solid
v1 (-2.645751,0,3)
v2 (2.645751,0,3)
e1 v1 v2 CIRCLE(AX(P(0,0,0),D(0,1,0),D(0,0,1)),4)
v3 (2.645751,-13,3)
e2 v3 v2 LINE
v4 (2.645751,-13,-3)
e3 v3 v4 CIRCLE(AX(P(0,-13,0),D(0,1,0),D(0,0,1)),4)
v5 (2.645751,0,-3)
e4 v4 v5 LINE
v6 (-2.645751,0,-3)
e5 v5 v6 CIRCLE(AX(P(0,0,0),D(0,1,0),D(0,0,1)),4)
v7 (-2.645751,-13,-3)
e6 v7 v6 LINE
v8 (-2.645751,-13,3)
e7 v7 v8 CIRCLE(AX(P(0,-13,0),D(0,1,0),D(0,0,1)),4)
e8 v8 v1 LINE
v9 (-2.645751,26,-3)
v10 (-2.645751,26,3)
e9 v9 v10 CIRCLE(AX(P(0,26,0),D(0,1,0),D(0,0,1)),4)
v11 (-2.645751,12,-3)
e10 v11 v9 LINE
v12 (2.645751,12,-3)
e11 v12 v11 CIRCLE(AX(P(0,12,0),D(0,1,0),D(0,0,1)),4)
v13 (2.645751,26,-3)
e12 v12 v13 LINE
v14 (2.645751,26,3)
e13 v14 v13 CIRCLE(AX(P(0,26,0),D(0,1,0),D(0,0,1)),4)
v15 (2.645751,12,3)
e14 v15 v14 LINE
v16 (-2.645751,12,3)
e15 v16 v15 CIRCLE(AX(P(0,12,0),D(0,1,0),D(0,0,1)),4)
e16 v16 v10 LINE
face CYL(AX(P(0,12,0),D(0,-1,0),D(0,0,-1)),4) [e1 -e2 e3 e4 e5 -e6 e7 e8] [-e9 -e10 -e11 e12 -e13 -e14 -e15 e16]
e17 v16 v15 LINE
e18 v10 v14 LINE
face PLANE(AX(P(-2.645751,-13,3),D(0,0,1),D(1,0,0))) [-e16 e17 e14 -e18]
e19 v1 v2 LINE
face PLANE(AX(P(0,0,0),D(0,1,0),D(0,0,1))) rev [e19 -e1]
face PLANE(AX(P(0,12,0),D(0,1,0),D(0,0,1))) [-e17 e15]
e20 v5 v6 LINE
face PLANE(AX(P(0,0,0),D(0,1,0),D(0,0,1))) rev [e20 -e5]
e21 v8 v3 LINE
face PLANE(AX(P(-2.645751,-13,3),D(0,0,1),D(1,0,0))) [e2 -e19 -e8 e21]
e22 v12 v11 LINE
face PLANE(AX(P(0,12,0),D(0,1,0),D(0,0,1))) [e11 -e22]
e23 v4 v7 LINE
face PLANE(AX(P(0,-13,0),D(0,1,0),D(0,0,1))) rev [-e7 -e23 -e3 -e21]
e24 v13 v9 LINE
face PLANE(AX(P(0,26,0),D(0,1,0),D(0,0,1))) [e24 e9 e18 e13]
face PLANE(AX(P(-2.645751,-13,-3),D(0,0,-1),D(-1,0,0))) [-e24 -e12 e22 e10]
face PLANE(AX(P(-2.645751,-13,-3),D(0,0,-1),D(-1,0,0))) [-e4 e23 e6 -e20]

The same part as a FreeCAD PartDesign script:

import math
import FreeCAD as App
import Part
import Sketcher
from FreeCAD import Vector
Q = App.Units.Quantity

doc = App.newDocument("Part")
body = doc.addObject("PartDesign::Body", "Body")

# Sketch on XZ plane
sketch1 = doc.addObject("Sketcher::SketchObject", "Sketch")
body.addObject(sketch1)
sketch1.AttachmentSupport = (doc.XZ_Plane, [""])
sketch1.MapMode = "FlatFace"
sketch1.addGeometry(Part.Circle(Vector(0, 0, 0), Vector(0, 0, 1), 4), False)
sketch1.addConstraint([
    Sketcher.Constraint("Coincident", 0, 3, -1, 1),
    Sketcher.Constraint("Diameter", 0, Q("8 mm")),
])
pad1 = doc.addObject("PartDesign::Pad", "Pad")
body.addObject(pad1)
pad1.Profile = sketch1
pad1.Length = 12
pad1.Reversed = True

# Sketch on XZ plane
sketch2 = doc.addObject("Sketcher::SketchObject", "Sketch001")
body.addObject(sketch2)
sketch2.AttachmentSupport = (doc.XZ_Plane, [""])
sketch2.MapMode = "FlatFace"
sketch2.AttachmentOffset = App.Placement(Vector(0, 0, -12), App.Rotation())
sketch2.addGeometry([
    Part.LineSegment(Vector(-2.6, 3, 0), Vector(2.6, 3, 0)),
    Part.ArcOfCircle(Part.Circle(Vector(0, 0, 0), Vector(0, 0, 1), 4), math.radians(-49), math.radians(49)),
    Part.LineSegment(Vector(2.6, -3, 0), Vector(-2.6, -3, 0)),
    Part.ArcOfCircle(Part.Circle(Vector(0, 0, 0), Vector(0, 0, 1), 4), math.radians(131), math.radians(229)),
], False)
sketch2.addConstraint([
    Sketcher.Constraint("Coincident", 0, 2, 1, 2),
    Sketcher.Constraint("Coincident", 1, 1, 2, 1),
    Sketcher.Constraint("Coincident", 2, 2, 3, 2),
    Sketcher.Constraint("Coincident", 3, 1, 0, 1),
    Sketcher.Constraint("Horizontal", 0),
    Sketcher.Constraint("Horizontal", 2),
    Sketcher.Constraint("Coincident", 1, 3, -1, 1),
    Sketcher.Constraint("Coincident", 3, 3, -1, 1),
    Sketcher.Constraint("Equal", 1, 3),
    Sketcher.Constraint("Vertical", 0, 2, 1, 1),
    Sketcher.Constraint("Radius", 1, Q("4 mm")),
    Sketcher.Constraint("DistanceY", -1, 1, 0, 2, Q("3 mm")),
])
pad2 = doc.addObject("PartDesign::Pad", "Pad001")
body.addObject(pad2)
pad2.Profile = sketch2
pad2.Type = "TwoLengths"
pad2.Length = 14
pad2.Length2 = 25
pad2.Reversed = True

doc.recompute()
